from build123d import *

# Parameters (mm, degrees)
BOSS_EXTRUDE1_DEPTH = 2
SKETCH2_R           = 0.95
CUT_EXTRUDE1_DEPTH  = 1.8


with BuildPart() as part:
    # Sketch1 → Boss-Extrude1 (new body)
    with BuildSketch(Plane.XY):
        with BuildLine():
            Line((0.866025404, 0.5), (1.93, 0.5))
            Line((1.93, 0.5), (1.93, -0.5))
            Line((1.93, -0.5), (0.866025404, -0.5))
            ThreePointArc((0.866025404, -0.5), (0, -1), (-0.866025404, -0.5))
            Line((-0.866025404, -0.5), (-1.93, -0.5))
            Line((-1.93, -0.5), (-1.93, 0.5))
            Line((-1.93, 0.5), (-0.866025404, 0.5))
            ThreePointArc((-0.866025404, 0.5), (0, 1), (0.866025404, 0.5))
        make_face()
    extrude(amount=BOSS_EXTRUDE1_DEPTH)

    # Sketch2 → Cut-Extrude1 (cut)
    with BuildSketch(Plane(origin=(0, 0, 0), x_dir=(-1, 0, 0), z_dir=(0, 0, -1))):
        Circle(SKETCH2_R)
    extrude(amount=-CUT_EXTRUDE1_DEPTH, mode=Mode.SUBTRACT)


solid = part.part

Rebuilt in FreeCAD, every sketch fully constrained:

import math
import FreeCAD as App
import Part
import Sketcher
from FreeCAD import Vector

doc = App.newDocument("Part")
body = doc.addObject("PartDesign::Body", "Body")

# Sketch on XY plane
sketch1 = doc.addObject("Sketcher::SketchObject", "Sketch")
body.addObject(sketch1)
sketch1.AttachmentSupport = (doc.XY_Plane, [""])
sketch1.MapMode = "FlatFace"
sketch1.addGeometry([
    Part.LineSegment(Vector(1.9, 0.5, 0), Vector(0.9, 0.5, 0)),  # 0
    Part.ArcOfCircle(Part.Circle(Vector(0, 0, 0), Vector(0, 0, 1), 1), math.radians(30), math.radians(150)),  # 1
    Part.LineSegment(Vector(-0.9, 0.5, 0), Vector(-1.9, 0.5, 0)),  # 2
    Part.LineSegment(Vector(-1.9, 0.5, 0), Vector(-1.9, -0.5, 0)),  # 3
    Part.LineSegment(Vector(-1.9, -0.5, 0), Vector(-0.9, -0.5, 0)),  # 4
    Part.ArcOfCircle(Part.Circle(Vector(0, 0, 0), Vector(0, 0, 1), 1), math.radians(-150), math.radians(-30)),  # 5
    Part.LineSegment(Vector(0.9, -0.5, 0), Vector(1.9, -0.5, 0)),  # 6
    Part.LineSegment(Vector(1.9, -0.5, 0), Vector(1.9, 0.5, 0)),  # 7
], False)
sketch1.addConstraint([
    Sketcher.Constraint("Coincident", 0, 2, 1, 1),
    Sketcher.Constraint("Coincident", 1, 2, 2, 1),
    Sketcher.Constraint("Coincident", 2, 2, 3, 1),
    Sketcher.Constraint("Coincident", 3, 2, 4, 1),
    Sketcher.Constraint("Coincident", 4, 2, 5, 1),
    Sketcher.Constraint("Coincident", 5, 2, 6, 1),
    Sketcher.Constraint("Coincident", 6, 2, 7, 1),
    Sketcher.Constraint("Coincident", 7, 2, 0, 1),
    Sketcher.Constraint("Horizontal", 0),
    Sketcher.Constraint("Horizontal", 2),
    Sketcher.Constraint("Vertical", 3),
    Sketcher.Constraint("Horizontal", 4),
    Sketcher.Constraint("Horizontal", 6),
    Sketcher.Constraint("Vertical", 7),
    Sketcher.Constraint("Coincident", 1, 3, -1, 1),
    Sketcher.Constraint("Coincident", 5, 3, -1, 1),
    Sketcher.Constraint("Equal", 1, 5),
    Sketcher.Constraint("Symmetric", 2, 2, 6, 2, -1, 1),
    Sketcher.Constraint("Horizontal", 0, 2, 1, 2),
    Sketcher.Constraint("Horizontal", 4, 2, 5, 2),
    Sketcher.Constraint("Radius", 1, 1.0),
    Sketcher.Constraint("DistanceY", 3, 2, 3, 1, 1.0),
    Sketcher.Constraint("DistanceX", 2, 2, -1, 1, 1.93),
])
pad1 = doc.addObject("PartDesign::Pad", "Pad")
body.addObject(pad1)
pad1.Profile = sketch1
pad1.Length = 2

# Sketch on XY plane
sketch2 = doc.addObject("Sketcher::SketchObject", "Sketch001")
body.addObject(sketch2)
sketch2.AttachmentSupport = (doc.XY_Plane, [""])
sketch2.MapMode = "FlatFace"
sketch2.addGeometry(Part.Circle(Vector(0, 0, 0), Vector(0, 0, 1), 0.9), False)
sketch2.addConstraint([
    Sketcher.Constraint("Coincident", 0, 3, -1, 1),
    Sketcher.Constraint("Diameter", 0, 1.9),
])
pocket1 = doc.addObject("PartDesign::Pocket", "Pocket")
body.addObject(pocket1)
pocket1.Profile = sketch2
pocket1.Length = 1.8
pocket1.Reversed = True

doc.recompute()
